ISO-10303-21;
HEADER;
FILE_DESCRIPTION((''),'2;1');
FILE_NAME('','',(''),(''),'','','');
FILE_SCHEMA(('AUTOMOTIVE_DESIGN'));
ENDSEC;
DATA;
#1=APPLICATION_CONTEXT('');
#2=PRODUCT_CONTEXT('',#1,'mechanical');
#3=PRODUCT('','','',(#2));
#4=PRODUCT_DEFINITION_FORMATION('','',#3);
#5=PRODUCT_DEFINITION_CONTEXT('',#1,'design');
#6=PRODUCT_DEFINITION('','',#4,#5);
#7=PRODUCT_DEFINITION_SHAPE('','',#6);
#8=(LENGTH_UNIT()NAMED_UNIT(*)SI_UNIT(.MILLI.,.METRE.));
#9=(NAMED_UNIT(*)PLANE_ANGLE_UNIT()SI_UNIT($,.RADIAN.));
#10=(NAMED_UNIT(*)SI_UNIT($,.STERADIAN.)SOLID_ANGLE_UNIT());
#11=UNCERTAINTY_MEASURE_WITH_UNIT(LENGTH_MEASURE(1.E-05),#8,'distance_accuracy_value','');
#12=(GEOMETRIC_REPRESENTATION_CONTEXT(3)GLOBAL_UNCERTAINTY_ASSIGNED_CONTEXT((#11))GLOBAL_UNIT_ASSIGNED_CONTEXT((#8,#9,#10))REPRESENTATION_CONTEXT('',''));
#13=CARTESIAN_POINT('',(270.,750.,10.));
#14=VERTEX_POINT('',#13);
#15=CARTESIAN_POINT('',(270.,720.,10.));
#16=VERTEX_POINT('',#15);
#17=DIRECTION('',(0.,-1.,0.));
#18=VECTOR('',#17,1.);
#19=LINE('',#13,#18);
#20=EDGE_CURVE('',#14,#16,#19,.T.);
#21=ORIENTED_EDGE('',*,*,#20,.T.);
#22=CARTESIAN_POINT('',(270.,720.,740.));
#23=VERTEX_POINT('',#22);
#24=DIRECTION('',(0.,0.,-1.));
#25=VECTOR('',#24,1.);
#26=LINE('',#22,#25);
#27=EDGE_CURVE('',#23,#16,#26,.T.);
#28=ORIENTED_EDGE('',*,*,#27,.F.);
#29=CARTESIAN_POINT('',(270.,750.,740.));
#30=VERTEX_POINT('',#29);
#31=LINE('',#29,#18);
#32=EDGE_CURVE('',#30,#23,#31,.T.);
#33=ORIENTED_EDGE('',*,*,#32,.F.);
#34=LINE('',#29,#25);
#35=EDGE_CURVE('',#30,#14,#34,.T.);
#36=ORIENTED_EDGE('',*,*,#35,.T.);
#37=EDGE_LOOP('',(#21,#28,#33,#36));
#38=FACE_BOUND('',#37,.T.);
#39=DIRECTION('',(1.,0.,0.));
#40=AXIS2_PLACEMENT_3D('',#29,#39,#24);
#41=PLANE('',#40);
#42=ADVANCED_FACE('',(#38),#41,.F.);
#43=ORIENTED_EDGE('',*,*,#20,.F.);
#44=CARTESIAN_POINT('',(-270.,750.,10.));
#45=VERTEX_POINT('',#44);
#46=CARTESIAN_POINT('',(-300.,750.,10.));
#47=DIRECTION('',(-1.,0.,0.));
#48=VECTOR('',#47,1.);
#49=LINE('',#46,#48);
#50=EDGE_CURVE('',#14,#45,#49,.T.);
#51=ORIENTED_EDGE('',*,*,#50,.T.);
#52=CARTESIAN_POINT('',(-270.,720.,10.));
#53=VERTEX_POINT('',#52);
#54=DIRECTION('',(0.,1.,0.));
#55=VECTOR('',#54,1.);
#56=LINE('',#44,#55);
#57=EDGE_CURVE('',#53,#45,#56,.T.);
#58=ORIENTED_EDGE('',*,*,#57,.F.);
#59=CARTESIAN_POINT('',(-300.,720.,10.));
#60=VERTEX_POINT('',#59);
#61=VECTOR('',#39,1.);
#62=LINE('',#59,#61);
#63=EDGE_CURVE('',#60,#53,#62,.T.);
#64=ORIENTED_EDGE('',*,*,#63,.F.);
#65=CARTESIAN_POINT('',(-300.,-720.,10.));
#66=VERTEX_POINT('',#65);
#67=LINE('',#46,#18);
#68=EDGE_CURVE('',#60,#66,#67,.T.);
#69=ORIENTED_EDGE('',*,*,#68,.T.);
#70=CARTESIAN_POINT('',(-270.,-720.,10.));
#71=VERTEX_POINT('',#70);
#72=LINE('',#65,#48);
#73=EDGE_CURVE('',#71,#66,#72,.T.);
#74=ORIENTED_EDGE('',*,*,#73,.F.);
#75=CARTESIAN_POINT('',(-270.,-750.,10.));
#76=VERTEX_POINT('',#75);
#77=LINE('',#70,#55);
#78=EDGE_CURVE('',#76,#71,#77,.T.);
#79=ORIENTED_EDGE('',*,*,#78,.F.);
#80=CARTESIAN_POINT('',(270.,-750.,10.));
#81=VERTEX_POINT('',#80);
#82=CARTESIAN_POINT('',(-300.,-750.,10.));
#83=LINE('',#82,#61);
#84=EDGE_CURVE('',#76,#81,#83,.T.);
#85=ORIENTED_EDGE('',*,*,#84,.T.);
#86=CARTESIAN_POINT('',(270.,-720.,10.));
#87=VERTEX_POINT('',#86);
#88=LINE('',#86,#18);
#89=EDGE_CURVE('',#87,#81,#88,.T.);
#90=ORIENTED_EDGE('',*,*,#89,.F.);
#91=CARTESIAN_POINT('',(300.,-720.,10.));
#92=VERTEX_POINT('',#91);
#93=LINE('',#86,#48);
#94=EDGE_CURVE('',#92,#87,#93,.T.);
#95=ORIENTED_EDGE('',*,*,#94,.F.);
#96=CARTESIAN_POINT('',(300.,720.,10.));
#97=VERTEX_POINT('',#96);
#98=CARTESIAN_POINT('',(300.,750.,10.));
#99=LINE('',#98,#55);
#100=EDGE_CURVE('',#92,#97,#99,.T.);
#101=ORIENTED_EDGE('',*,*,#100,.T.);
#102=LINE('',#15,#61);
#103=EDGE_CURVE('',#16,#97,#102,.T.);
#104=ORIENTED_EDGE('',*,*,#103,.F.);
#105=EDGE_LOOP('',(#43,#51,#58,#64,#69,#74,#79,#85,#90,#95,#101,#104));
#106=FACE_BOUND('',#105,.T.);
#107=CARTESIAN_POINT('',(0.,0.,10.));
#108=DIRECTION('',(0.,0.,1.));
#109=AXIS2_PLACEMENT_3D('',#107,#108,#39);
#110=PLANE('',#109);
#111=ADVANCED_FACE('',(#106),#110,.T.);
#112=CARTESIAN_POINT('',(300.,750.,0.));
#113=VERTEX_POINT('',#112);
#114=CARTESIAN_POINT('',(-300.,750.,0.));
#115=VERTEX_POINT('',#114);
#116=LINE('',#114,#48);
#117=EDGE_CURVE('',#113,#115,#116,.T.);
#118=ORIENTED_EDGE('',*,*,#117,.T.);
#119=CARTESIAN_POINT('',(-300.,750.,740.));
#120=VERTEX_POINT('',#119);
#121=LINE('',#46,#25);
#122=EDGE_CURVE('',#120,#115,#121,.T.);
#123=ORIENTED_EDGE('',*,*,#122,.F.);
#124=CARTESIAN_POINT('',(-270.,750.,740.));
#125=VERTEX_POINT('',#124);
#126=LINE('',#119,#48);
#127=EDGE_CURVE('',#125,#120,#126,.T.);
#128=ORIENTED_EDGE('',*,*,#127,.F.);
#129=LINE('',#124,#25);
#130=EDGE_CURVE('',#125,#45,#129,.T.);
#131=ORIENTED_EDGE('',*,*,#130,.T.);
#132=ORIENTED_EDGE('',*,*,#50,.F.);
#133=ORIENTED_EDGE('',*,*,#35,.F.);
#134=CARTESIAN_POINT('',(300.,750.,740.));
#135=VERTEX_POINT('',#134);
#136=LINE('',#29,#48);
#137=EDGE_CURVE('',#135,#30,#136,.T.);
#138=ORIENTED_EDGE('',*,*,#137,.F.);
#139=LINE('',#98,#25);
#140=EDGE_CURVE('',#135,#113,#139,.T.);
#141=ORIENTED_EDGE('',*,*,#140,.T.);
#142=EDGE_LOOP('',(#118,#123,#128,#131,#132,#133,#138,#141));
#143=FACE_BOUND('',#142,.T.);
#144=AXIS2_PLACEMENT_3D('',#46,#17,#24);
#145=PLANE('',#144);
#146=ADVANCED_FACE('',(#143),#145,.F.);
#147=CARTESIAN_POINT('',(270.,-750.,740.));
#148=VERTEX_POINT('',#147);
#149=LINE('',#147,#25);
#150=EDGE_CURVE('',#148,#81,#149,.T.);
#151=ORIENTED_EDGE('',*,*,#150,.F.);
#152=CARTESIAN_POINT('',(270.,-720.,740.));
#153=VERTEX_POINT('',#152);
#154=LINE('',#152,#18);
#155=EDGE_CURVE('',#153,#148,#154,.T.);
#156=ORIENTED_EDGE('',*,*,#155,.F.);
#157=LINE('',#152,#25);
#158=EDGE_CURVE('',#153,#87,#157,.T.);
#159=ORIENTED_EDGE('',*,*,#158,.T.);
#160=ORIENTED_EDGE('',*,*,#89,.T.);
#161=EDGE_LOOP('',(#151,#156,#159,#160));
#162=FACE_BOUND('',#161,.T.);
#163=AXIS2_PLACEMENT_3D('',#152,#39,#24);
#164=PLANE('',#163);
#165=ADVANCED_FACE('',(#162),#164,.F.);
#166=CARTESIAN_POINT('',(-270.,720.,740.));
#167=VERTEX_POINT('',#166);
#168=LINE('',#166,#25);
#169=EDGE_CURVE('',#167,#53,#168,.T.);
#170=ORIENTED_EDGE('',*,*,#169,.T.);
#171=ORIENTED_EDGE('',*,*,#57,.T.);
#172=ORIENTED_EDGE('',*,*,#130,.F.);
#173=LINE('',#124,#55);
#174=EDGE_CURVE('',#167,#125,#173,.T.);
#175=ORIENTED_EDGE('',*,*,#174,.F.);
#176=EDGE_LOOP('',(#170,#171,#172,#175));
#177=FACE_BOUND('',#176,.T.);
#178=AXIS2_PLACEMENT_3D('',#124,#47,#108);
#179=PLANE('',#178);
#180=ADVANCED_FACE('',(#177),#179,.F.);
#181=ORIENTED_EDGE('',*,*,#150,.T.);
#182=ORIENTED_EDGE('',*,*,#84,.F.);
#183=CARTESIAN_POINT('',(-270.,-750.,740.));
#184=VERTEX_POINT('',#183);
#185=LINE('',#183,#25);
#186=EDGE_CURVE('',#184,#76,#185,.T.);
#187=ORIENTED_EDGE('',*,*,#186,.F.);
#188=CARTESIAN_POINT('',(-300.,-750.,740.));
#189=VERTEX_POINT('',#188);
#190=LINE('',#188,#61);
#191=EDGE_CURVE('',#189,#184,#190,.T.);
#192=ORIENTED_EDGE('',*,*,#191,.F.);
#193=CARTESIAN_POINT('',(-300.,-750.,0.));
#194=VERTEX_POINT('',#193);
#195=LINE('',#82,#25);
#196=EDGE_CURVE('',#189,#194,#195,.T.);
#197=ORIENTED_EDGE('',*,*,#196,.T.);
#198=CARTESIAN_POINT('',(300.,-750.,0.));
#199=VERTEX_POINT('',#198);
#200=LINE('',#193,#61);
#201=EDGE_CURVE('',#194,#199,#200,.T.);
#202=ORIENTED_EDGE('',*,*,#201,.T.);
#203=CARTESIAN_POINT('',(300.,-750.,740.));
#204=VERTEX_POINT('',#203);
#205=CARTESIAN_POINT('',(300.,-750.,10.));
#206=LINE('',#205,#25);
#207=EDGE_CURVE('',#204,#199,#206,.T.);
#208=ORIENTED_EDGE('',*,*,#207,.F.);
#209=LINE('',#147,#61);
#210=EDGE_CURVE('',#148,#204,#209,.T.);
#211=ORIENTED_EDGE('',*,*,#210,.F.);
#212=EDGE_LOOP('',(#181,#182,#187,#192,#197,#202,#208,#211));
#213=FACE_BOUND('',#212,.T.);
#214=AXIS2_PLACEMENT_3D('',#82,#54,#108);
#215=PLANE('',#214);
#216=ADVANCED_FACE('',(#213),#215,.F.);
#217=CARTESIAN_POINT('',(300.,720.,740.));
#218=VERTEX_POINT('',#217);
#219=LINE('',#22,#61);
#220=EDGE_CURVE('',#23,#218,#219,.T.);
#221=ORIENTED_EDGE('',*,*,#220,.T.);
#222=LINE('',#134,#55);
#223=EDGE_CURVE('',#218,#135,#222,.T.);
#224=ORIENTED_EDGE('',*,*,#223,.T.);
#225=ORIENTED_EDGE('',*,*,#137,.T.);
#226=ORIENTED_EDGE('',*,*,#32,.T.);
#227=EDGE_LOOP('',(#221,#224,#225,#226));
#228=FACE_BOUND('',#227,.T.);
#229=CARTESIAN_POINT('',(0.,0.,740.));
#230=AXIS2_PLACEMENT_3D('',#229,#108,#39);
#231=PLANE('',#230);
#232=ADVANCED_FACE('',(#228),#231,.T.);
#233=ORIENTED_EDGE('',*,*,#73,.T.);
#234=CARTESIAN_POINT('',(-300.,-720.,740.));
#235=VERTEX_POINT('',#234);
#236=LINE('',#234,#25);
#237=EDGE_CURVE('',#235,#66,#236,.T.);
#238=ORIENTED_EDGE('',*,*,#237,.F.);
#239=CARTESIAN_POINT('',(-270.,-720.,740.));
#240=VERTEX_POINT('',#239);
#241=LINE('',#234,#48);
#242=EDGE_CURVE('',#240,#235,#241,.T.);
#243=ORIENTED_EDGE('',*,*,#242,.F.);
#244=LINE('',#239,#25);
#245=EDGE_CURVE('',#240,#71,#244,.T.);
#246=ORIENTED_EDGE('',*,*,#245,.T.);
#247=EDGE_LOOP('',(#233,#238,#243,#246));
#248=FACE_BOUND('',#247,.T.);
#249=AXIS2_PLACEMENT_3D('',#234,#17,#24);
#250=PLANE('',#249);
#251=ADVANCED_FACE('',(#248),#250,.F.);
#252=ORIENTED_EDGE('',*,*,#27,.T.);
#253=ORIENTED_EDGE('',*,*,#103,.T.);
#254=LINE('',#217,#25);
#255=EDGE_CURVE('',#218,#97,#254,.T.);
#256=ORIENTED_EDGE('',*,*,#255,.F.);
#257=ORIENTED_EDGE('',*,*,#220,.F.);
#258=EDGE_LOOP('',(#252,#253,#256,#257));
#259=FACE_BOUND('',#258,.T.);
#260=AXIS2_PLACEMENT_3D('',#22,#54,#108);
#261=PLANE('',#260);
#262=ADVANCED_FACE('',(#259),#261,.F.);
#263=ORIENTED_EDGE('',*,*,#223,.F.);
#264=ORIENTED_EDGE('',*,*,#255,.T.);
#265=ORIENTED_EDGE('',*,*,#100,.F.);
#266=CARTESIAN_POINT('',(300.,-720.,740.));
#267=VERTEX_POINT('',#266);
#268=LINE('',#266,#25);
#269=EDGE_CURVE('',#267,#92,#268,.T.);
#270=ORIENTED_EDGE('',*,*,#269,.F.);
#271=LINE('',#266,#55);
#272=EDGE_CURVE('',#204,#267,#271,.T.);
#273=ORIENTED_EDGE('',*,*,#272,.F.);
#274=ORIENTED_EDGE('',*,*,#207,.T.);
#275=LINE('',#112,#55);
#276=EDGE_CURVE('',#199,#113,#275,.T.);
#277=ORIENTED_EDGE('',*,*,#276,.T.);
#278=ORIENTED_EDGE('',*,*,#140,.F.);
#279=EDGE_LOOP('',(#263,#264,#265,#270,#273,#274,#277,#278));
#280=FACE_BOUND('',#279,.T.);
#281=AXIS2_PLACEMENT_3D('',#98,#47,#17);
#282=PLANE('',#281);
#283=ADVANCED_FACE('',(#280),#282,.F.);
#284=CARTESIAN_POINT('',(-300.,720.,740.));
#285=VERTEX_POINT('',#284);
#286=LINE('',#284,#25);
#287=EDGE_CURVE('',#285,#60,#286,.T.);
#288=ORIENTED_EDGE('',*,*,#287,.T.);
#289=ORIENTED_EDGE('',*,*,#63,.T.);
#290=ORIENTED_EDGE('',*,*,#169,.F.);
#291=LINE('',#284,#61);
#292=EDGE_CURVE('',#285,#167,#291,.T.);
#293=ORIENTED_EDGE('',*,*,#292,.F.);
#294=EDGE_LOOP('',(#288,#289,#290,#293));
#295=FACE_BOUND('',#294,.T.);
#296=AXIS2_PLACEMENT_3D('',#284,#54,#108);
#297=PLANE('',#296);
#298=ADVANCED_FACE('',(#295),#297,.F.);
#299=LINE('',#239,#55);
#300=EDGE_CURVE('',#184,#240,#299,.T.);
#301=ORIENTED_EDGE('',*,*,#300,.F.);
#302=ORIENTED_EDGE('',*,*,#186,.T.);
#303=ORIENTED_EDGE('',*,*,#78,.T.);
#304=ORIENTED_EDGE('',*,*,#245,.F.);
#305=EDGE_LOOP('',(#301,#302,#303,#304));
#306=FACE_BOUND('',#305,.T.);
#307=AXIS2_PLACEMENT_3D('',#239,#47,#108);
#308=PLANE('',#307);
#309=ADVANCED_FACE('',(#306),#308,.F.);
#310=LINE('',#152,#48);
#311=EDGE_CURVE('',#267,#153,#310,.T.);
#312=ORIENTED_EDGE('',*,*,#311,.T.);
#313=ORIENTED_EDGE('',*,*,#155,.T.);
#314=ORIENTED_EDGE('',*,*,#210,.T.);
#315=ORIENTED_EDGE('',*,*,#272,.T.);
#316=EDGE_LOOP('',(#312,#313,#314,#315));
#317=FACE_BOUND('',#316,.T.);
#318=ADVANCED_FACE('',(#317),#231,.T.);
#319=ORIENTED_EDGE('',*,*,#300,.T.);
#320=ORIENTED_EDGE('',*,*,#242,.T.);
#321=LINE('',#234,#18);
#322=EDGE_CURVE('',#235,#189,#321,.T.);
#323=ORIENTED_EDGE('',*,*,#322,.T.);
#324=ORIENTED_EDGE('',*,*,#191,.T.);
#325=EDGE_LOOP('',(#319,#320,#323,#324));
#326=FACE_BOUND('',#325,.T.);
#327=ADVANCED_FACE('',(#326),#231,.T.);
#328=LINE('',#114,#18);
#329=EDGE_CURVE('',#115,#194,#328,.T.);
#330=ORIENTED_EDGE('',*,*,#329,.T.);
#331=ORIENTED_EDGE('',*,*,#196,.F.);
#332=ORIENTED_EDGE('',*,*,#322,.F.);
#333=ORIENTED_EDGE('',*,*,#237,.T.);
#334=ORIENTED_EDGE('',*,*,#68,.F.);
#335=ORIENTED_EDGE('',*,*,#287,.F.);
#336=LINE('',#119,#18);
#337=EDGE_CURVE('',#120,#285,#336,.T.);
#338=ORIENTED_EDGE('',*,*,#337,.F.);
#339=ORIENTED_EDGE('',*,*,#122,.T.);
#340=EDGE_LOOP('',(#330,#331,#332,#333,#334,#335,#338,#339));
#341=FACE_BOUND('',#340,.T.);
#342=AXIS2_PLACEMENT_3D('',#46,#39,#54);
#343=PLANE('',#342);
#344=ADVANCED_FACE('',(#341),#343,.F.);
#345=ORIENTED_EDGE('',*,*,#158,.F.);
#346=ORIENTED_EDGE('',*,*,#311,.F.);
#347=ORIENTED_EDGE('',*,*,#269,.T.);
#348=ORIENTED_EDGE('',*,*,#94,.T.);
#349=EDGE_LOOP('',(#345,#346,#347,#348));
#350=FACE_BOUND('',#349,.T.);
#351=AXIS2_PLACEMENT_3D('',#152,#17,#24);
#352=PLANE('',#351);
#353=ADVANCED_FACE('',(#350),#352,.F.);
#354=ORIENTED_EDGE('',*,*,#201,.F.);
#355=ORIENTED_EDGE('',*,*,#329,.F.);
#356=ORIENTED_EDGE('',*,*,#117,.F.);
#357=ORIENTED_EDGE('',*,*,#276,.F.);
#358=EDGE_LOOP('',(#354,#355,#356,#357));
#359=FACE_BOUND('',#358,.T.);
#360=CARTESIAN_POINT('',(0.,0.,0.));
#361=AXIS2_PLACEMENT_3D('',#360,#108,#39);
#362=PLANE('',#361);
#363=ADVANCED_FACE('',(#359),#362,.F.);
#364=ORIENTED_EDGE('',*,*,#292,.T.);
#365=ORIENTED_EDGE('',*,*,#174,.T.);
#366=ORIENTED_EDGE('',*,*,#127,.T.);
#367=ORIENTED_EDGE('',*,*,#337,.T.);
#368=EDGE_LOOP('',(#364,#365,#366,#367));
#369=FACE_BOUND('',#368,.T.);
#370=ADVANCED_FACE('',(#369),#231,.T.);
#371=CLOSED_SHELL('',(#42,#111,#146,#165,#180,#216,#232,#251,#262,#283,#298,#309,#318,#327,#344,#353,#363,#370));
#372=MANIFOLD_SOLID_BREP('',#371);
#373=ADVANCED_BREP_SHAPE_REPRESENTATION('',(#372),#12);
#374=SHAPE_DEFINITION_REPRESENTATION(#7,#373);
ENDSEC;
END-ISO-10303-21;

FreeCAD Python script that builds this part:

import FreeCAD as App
import Part
import Sketcher

doc = App.newDocument("Part")
body = doc.addObject("PartDesign::Body", "Body")

# Sketch on XY plane
sketch1 = body.newObject("Sketcher::SketchObject", "Sketch")
sketch1.AttachmentSupport = (doc.getObject("XY_Plane"), [""])
sketch1.MapMode = "FlatFace"
sketch1.addGeometry(Part.LineSegment(App.Vector(-300, 750, 0), App.Vector(-300, -750, 0)), False)
sketch1.addGeometry(Part.LineSegment(App.Vector(-300, -750, 0), App.Vector(300, -750, 0)), False)
sketch1.addGeometry(Part.LineSegment(App.Vector(300, -750, 0), App.Vector(300, 750, 0)), False)
sketch1.addGeometry(Part.LineSegment(App.Vector(300, 750, 0), App.Vector(-300, 750, 0)), False)
sketch1.addConstraint(Sketcher.Constraint("Coincident", 0, 2, 1, 1))
sketch1.addConstraint(Sketcher.Constraint("Coincident", 1, 2, 2, 1))
sketch1.addConstraint(Sketcher.Constraint("Coincident", 2, 2, 3, 1))
sketch1.addConstraint(Sketcher.Constraint("Coincident", 3, 2, 0, 1))
sketch1.addConstraint(Sketcher.Constraint("Vertical", 0))
sketch1.addConstraint(Sketcher.Constraint("Horizontal", 1))
sketch1.addConstraint(Sketcher.Constraint("Vertical", 2))
sketch1.addConstraint(Sketcher.Constraint("Horizontal", 3))
sketch1.addConstraint(Sketcher.Constraint("Symmetric", 0, 2, 2, 2, -1, 1))
sketch1.addConstraint(Sketcher.Constraint("DistanceX", 1, 1, 1, 2, 600.0))
sketch1.addConstraint(Sketcher.Constraint("DistanceY", 0, 2, 0, 1, 1500.0))
pad1 = body.newObject("PartDesign::Pad", "Pad")
pad1.Profile = sketch1
pad1.Length = 10

# Sketch on XY plane
sketch2 = body.newObject("Sketcher::SketchObject", "Sketch001")
sketch2.AttachmentSupport = (doc.getObject("XY_Plane"), [""])
sketch2.MapMode = "FlatFace"
sketch2.AttachmentOffset = App.Placement(App.Vector(0, 0, 10), App.Rotation())
sketch2.addGeometry(Part.LineSegment(App.Vector(-300, 750, 0), App.Vector(-300, 720, 0)), False)
sketch2.addGeometry(Part.LineSegment(App.Vector(-300, 720, 0), App.Vector(-270, 720, 0)), False)
sketch2.addGeometry(Part.LineSegment(App.Vector(-270, 720, 0), App.Vector(-270, 750, 0)), False)
sketch2.addGeometry(Part.LineSegment(App.Vector(-270, 750, 0), App.Vector(-300, 750, 0)), False)
sketch2.addGeometry(Part.LineSegment(App.Vector(270, 750, 0), App.Vector(270, 720, 0)), False)
sketch2.addGeometry(Part.LineSegment(App.Vector(270, 720, 0), App.Vector(300, 720, 0)), False)
sketch2.addGeometry(Part.LineSegment(App.Vector(300, 720, 0), App.Vector(300, 750, 0)), False)
sketch2.addGeometry(Part.LineSegment(App.Vector(300, 750, 0), App.Vector(270, 750, 0)), False)
sketch2.addGeometry(Part.LineSegment(App.Vector(270, -720, 0), App.Vector(270, -750, 0)), False)
sketch2.addGeometry(Part.LineSegment(App.Vector(270, -750, 0), App.Vector(300, -750, 0)), False)
sketch2.addGeometry(Part.LineSegment(App.Vector(300, -750, 0), App.Vector(300, -720, 0)), False)
sketch2.addGeometry(Part.LineSegment(App.Vector(300, -720, 0), App.Vector(270, -720, 0)), False)
sketch2.addGeometry(Part.LineSegment(App.Vector(-300, -720, 0), App.Vector(-300, -750, 0)), False)
sketch2.addGeometry(Part.LineSegment(App.Vector(-300, -750, 0), App.Vector(-270, -750, 0)), False)
sketch2.addGeometry(Part.LineSegment(App.Vector(-270, -750, 0), App.Vector(-270, -720, 0)), False)
sketch2.addGeometry(Part.LineSegment(App.Vector(-270, -720, 0), App.Vector(-300, -720, 0)), False)
sketch2.addConstraint(Sketcher.Constraint("Coincident", 0, 2, 1, 1))
sketch2.addConstraint(Sketcher.Constraint("Coincident", 1, 2, 2, 1))
sketch2.addConstraint(Sketcher.Constraint("Coincident", 2, 2, 3, 1))
sketch2.addConstraint(Sketcher.Constraint("Coincident", 3, 2, 0, 1))
sketch2.addConstraint(Sketcher.Constraint("Coincident", 4, 2, 5, 1))
sketch2.addConstraint(Sketcher.Constraint("Coincident", 5, 2, 6, 1))
sketch2.addConstraint(Sketcher.Constraint("Coincident", 6, 2, 7, 1))
sketch2.addConstraint(Sketcher.Constraint("Coincident", 7, 2, 4, 1))
sketch2.addConstraint(Sketcher.Constraint("Coincident", 8, 2, 9, 1))
sketch2.addConstraint(Sketcher.Constraint("Coincident", 9, 2, 10, 1))
sketch2.addConstraint(Sketcher.Constraint("Coincident", 10, 2, 11, 1))
sketch2.addConstraint(Sketcher.Constraint("Coincident", 11, 2, 8, 1))
sketch2.addConstraint(Sketcher.Constraint("Coincident", 12, 2, 13, 1))
sketch2.addConstraint(Sketcher.Constraint("Coincident", 13, 2, 14, 1))
sketch2.addConstraint(Sketcher.Constraint("Coincident", 14, 2, 15, 1))
sketch2.addConstraint(Sketcher.Constraint("Coincident", 15, 2, 12, 1))
sketch2.addConstraint(Sketcher.Constraint("Vertical", 0))
sketch2.addConstraint(Sketcher.Constraint("Horizontal", 1))
sketch2.addConstraint(Sketcher.Constraint("Vertical", 2))
sketch2.addConstraint(Sketcher.Constraint("Horizontal", 3))
sketch2.addConstraint(Sketcher.Constraint("Vertical", 4))
sketch2.addConstraint(Sketcher.Constraint("Horizontal", 5))
sketch2.addConstraint(Sketcher.Constraint("Vertical", 6))
sketch2.addConstraint(Sketcher.Constraint("Horizontal", 7))
sketch2.addConstraint(Sketcher.Constraint("Vertical", 8))
sketch2.addConstraint(Sketcher.Constraint("Horizontal", 9))
sketch2.addConstraint(Sketcher.Constraint("Vertical", 10))
sketch2.addConstraint(Sketcher.Constraint("Horizontal", 11))
sketch2.addConstraint(Sketcher.Constraint("Vertical", 12))
sketch2.addConstraint(Sketcher.Constraint("Horizontal", 13))
sketch2.addConstraint(Sketcher.Constraint("Vertical", 14))
sketch2.addConstraint(Sketcher.Constraint("Horizontal", 15))
sketch2.addConstraint(Sketcher.Constraint("Symmetric", 2, 2, 8, 2, -1, 1))
sketch2.addConstraint(Sketcher.Constraint("Symmetric", 0, 2, 10, 2, -1, 1))
sketch2.addConstraint(Sketcher.Constraint("Symmetric", 6, 2, 12, 2, -1, 1))
sketch2.addConstraint(Sketcher.Constraint("Symmetric", 4, 2, 14, 2, -1, 1))
sketch2.addConstraint(Sketcher.Constraint("Symmetric", 1, 2, 4, 2, -2))
sketch2.addConstraint(Sketcher.Constraint("Symmetric", 3, 2, 6, 2, -2))
sketch2.addConstraint(Sketcher.Constraint("Equal", 15, 0))
sketch2.addConstraint(Sketcher.Constraint("DistanceX", 1, 1, 1, 2, 30.0))
sketch2.addConstraint(Sketcher.Constraint("DistanceX", 0, 2, -1, 1, 300.0))
sketch2.addConstraint(Sketcher.Constraint("DistanceY", -1, 1, 0, 2, 720.0))
pad2 = body.newObject("PartDesign::Pad", "Pad001")
pad2.Profile = sketch2
pad2.Length = 730

doc.recompute()
